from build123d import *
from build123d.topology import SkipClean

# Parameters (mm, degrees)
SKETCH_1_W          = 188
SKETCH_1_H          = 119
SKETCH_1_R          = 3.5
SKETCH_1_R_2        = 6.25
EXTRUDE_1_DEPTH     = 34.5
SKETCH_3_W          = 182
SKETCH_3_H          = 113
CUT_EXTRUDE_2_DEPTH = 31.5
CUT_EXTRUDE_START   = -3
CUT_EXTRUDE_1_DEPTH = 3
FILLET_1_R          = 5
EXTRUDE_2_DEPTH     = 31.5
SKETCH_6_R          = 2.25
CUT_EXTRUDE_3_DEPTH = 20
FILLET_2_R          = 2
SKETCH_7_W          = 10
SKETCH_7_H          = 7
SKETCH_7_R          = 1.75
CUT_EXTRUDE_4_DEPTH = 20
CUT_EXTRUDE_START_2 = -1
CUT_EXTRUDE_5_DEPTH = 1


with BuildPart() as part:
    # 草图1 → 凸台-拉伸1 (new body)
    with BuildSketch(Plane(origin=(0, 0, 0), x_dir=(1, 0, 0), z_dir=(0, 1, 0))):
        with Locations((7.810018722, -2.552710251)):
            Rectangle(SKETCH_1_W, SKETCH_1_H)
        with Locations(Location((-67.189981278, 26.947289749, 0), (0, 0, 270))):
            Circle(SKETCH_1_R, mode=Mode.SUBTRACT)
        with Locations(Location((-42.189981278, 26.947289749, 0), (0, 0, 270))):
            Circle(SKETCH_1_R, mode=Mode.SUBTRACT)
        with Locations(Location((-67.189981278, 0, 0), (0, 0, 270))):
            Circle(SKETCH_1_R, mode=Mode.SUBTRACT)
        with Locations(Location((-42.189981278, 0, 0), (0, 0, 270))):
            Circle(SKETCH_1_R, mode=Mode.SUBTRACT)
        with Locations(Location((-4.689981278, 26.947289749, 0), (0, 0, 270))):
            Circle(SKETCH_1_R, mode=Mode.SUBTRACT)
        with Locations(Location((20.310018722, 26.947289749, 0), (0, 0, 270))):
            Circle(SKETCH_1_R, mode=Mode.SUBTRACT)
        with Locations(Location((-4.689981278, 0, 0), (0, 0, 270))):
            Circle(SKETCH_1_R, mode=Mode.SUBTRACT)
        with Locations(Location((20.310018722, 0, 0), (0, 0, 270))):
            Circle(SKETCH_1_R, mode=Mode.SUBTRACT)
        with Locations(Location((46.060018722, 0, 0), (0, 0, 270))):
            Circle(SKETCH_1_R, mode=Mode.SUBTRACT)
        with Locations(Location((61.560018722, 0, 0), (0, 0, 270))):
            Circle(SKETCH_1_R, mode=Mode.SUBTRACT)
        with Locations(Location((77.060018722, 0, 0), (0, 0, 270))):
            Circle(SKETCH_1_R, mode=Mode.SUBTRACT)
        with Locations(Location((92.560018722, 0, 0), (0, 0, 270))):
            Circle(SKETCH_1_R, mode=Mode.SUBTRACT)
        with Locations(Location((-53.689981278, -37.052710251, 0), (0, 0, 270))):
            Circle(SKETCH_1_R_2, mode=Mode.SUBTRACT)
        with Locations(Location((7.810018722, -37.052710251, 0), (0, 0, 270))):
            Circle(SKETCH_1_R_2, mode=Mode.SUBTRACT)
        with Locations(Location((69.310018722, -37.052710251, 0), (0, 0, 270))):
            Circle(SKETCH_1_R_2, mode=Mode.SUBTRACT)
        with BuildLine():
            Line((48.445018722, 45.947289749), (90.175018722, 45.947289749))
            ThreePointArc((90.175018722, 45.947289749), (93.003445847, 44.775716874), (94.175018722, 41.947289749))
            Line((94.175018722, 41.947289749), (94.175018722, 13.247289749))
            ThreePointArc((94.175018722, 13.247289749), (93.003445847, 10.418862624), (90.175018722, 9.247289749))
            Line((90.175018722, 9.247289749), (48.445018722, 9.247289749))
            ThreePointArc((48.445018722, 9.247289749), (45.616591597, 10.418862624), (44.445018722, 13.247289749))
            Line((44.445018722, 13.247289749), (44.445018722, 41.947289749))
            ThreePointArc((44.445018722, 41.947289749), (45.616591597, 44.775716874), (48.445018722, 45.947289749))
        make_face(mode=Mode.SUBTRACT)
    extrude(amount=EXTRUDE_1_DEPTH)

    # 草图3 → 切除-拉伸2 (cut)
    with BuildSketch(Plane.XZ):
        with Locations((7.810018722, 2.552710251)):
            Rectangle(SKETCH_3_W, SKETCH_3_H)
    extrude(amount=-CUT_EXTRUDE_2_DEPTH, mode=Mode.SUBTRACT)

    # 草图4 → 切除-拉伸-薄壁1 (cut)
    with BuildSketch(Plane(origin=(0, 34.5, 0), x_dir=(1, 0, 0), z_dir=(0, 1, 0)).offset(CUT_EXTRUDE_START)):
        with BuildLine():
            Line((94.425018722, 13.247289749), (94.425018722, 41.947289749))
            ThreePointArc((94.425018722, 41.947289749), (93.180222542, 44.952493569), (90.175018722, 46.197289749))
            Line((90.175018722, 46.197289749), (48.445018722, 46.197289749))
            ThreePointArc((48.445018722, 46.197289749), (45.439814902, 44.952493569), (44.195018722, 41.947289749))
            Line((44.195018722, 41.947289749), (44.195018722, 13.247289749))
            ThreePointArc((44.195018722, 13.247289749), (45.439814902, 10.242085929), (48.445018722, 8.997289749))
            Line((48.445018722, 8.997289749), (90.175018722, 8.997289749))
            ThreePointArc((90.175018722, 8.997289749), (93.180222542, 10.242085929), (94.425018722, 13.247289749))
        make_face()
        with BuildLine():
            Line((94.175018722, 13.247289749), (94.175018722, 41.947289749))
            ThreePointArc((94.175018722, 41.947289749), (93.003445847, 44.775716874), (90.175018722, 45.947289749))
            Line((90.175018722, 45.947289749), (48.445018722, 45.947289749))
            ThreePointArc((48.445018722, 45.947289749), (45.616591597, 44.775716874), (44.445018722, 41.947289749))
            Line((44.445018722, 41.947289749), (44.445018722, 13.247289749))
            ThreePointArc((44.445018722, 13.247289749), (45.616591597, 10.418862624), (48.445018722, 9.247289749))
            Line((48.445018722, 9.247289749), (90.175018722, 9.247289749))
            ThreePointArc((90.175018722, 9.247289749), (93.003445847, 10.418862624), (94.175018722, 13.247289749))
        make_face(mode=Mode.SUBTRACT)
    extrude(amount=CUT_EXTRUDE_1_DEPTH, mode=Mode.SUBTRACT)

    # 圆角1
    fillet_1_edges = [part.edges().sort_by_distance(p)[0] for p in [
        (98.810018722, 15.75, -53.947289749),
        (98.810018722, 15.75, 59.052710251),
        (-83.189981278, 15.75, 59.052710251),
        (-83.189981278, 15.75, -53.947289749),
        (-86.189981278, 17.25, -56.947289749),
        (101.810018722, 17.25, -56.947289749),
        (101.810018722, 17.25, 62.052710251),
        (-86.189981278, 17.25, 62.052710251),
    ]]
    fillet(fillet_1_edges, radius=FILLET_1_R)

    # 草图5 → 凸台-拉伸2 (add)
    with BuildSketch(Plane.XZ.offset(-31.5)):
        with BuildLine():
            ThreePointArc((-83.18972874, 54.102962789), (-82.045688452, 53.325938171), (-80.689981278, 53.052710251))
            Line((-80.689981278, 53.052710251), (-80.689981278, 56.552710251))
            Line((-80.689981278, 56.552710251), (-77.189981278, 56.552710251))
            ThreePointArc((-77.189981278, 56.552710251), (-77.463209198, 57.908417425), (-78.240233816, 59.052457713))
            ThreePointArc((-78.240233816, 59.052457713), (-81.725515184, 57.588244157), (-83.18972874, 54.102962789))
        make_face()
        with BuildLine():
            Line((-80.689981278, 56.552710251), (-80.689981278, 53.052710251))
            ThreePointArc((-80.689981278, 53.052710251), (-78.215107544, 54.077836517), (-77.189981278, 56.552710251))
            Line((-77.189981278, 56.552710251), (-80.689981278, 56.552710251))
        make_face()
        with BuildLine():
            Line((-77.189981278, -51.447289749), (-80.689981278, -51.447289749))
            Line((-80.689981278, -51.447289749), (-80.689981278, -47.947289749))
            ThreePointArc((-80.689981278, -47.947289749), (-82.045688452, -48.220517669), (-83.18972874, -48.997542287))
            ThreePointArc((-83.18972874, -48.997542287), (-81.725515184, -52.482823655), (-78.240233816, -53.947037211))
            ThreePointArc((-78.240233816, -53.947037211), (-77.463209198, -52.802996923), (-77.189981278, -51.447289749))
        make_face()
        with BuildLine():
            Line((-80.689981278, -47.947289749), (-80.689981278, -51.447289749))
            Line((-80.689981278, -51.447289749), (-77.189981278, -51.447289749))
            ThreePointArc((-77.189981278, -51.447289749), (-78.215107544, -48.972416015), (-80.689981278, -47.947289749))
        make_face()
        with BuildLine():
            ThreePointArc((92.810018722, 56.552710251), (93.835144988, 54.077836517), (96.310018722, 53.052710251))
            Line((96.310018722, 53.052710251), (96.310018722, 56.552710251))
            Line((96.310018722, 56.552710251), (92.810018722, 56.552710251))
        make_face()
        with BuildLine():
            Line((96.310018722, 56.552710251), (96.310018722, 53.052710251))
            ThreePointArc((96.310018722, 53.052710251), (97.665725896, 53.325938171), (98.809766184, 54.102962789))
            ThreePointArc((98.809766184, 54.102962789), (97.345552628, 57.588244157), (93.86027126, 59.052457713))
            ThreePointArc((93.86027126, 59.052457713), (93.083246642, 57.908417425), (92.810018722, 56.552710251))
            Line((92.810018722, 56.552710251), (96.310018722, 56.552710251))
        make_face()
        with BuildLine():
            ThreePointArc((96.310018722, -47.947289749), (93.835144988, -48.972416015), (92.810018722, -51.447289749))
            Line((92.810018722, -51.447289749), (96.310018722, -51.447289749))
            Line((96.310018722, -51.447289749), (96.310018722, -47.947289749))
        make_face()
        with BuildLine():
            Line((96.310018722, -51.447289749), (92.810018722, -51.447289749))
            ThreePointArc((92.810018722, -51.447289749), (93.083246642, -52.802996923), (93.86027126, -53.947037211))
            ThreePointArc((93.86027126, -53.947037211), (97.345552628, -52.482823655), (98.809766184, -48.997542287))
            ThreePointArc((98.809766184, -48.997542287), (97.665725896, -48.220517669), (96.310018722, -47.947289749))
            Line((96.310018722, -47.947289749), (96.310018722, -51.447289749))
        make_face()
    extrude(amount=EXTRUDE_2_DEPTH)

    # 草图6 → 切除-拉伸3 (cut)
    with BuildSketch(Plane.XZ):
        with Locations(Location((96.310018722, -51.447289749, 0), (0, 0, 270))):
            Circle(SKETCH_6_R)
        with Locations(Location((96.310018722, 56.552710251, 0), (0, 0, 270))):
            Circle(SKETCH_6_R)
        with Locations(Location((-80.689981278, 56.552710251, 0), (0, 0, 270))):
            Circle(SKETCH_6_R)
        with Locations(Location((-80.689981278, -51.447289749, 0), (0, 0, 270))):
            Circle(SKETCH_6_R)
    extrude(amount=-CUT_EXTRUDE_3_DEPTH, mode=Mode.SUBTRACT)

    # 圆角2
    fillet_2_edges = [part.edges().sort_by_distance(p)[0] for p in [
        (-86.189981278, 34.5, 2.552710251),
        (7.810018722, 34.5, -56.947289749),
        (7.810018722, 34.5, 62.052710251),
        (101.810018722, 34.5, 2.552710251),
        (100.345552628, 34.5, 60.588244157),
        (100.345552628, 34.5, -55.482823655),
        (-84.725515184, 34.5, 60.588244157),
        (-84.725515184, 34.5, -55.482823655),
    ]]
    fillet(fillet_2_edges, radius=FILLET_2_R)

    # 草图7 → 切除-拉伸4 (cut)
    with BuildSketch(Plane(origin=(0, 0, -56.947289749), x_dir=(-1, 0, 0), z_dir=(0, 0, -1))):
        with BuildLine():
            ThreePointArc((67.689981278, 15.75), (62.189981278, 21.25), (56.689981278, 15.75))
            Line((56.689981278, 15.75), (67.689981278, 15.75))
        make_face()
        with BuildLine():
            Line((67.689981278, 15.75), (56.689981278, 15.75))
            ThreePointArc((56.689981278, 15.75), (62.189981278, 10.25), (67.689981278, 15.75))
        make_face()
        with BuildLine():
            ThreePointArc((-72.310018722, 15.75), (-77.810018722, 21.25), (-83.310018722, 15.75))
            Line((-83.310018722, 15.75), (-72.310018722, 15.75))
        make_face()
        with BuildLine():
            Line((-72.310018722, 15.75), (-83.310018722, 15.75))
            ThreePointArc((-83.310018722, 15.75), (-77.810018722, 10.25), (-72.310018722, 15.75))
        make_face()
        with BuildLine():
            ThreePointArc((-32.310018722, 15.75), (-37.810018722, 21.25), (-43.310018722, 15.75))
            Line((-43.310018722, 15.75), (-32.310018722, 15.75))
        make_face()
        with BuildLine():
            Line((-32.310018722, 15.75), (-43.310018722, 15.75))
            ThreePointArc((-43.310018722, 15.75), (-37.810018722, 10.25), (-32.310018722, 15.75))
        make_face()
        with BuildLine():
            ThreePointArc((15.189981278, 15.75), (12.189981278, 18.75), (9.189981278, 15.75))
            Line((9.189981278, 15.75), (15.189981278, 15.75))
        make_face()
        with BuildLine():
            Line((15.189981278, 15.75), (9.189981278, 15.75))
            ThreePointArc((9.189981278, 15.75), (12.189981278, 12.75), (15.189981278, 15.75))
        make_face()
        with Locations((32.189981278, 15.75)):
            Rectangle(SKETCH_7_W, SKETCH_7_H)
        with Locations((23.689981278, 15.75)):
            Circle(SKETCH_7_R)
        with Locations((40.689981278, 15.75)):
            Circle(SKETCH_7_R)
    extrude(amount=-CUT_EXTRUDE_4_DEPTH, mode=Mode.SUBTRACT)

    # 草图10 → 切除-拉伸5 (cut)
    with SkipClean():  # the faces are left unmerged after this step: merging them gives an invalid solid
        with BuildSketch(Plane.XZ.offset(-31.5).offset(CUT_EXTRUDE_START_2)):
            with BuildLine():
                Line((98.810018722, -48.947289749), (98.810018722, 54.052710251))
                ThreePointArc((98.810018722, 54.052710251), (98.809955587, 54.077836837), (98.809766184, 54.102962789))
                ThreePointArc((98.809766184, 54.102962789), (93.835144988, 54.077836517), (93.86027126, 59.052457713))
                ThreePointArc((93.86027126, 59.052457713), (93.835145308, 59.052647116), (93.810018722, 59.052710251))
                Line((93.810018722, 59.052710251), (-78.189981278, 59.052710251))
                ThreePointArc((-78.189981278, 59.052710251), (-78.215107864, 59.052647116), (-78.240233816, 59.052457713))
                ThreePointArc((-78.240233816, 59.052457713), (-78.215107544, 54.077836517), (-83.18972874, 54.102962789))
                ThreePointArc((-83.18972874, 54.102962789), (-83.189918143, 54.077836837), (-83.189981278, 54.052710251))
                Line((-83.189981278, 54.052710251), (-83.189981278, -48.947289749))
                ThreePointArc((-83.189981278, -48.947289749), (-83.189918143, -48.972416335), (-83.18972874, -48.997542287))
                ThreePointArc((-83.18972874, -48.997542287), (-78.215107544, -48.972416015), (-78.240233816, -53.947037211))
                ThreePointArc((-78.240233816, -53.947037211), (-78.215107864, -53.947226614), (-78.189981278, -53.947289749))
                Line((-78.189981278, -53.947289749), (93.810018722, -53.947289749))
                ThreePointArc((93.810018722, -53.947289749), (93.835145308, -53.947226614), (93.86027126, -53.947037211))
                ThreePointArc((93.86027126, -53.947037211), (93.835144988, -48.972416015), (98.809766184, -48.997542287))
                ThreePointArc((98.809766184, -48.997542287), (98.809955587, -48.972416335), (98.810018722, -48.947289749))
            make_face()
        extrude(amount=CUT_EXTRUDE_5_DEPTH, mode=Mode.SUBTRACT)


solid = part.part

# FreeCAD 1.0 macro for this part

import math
import FreeCAD as App
import Part
import Sketcher
from FreeCAD import Vector


def edges_at(feature, points):
    """Names of the edges that pass closest to the given points."""
    edges = feature.Shape.Edges
    near = lambda p: min(range(len(edges)), key=lambda i: edges[i].distToShape(Part.Vertex(*p))[0])
    return sorted({f"Edge{near(p) + 1}" for p in points})

doc = App.newDocument("Part")
body = doc.addObject("PartDesign::Body", "Body")

sketch1 = body.newObject("Sketcher::SketchObject", "Sketch")
sketch1.AttachmentSupport = (doc.getObject("XZ_Plane"), [""])
sketch1.MapMode = "FlatFace"
sketch1.addGeometry(Part.LineSegment(Vector(-86.2, -56.9, 0), Vector(-86.2, 62.1, 0)), False)
sketch1.addGeometry(Part.LineSegment(Vector(-86.2, 62.1, 0), Vector(101.8, 62.1, 0)), False)
sketch1.addGeometry(Part.LineSegment(Vector(101.8, 62.1, 0), Vector(101.8, -56.9, 0)), False)
sketch1.addGeometry(Part.LineSegment(Vector(101.8, -56.9, 0), Vector(-86.2, -56.9, 0)), False)
sketch1.addGeometry(Part.Circle(Vector(-53.7, 37.1, 0), Vector(0, 0, 1), 6.2), False)
sketch1.addGeometry(Part.Circle(Vector(7.8, 37.1, 0), Vector(0, 0, 1), 6.2), False)
sketch1.addGeometry(Part.Circle(Vector(-67.2, 0, 0), Vector(0, 0, 1), 3.5), False)
sketch1.addGeometry(Part.Circle(Vector(-42.2, 0, 0), Vector(0, 0, 1), 3.5), False)
sketch1.addGeometry(Part.Circle(Vector(-4.7, 0, 0), Vector(0, 0, 1), 3.5), False)
sketch1.addGeometry(Part.Circle(Vector(69.3, 37.1, 0), Vector(0, 0, 1), 6.2), False)
sketch1.addGeometry(Part.Circle(Vector(20.3, 0, 0), Vector(0, 0, 1), 3.5), False)
sketch1.addGeometry(Part.Circle(Vector(46.1, 0, 0), Vector(0, 0, 1), 3.5), False)
sketch1.addGeometry(Part.Circle(Vector(61.6, 0, 0), Vector(0, 0, 1), 3.5), False)
sketch1.addGeometry(Part.Circle(Vector(77.1, 0, 0), Vector(0, 0, 1), 3.5), False)
sketch1.addGeometry(Part.Circle(Vector(92.6, 0, 0), Vector(0, 0, 1), 3.5), False)
sketch1.addGeometry(Part.Circle(Vector(-67.2, -26.9, 0), Vector(0, 0, 1), 3.5), False)
sketch1.addGeometry(Part.Circle(Vector(-42.2, -26.9, 0), Vector(0, 0, 1), 3.5), False)
sketch1.addGeometry(Part.Circle(Vector(-4.7, -26.9, 0), Vector(0, 0, 1), 3.5), False)
sketch1.addGeometry(Part.Circle(Vector(20.3, -26.9, 0), Vector(0, 0, 1), 3.5), False)
sketch1.addGeometry(Part.ArcOfCircle(Part.Circle(Vector(48.4, -41.9, 0), Vector(0, 0, 1), 4), math.radians(180), math.radians(270)), False)
sketch1.addGeometry(Part.LineSegment(Vector(48.4, -45.9, 0), Vector(90.2, -45.9, 0)), False)
sketch1.addGeometry(Part.ArcOfCircle(Part.Circle(Vector(90.2, -41.9, 0), Vector(0, 0, 1), 4), math.radians(-90), math.radians(0)), False)
sketch1.addGeometry(Part.LineSegment(Vector(94.2, -41.9, 0), Vector(94.2, -13.2, 0)), False)
sketch1.addGeometry(Part.ArcOfCircle(Part.Circle(Vector(90.2, -13.2, 0), Vector(0, 0, 1), 4), math.radians(0), math.radians(90)), False)
sketch1.addGeometry(Part.LineSegment(Vector(90.2, -9.2, 0), Vector(48.4, -9.2, 0)), False)
sketch1.addGeometry(Part.ArcOfCircle(Part.Circle(Vector(48.4, -13.2, 0), Vector(0, 0, 1), 4), math.radians(90), math.radians(180)), False)
sketch1.addGeometry(Part.LineSegment(Vector(44.4, -13.2, 0), Vector(44.4, -41.9, 0)), False)
sketch1.addConstraint(Sketcher.Constraint("Coincident", 0, 2, 1, 1))
sketch1.addConstraint(Sketcher.Constraint("Coincident", 1, 2, 2, 1))
sketch1.addConstraint(Sketcher.Constraint("Coincident", 2, 2, 3, 1))
sketch1.addConstraint(Sketcher.Constraint("Coincident", 3, 2, 0, 1))
sketch1.addConstraint(Sketcher.Constraint("Tangent", 19, 2, 20, 1))
sketch1.addConstraint(Sketcher.Constraint("Tangent", 20, 2, 21, 1))
sketch1.addConstraint(Sketcher.Constraint("Tangent", 21, 2, 22, 1))
sketch1.addConstraint(Sketcher.Constraint("Tangent", 22, 2, 23, 1))
sketch1.addConstraint(Sketcher.Constraint("Tangent", 23, 2, 24, 1))
sketch1.addConstraint(Sketcher.Constraint("Tangent", 24, 2, 25, 1))
sketch1.addConstraint(Sketcher.Constraint("Tangent", 25, 2, 26, 1))
sketch1.addConstraint(Sketcher.Constraint("Tangent", 26, 2, 19, 1))
sketch1.addConstraint(Sketcher.Constraint("Vertical", 0))
sketch1.addConstraint(Sketcher.Constraint("Horizontal", 1))
sketch1.addConstraint(Sketcher.Constraint("Vertical", 2))
sketch1.addConstraint(Sketcher.Constraint("Horizontal", 3))
sketch1.addConstraint(Sketcher.Constraint("Horizontal", 20))
sketch1.addConstraint(Sketcher.Constraint("Vertical", 22))
sketch1.addConstraint(Sketcher.Constraint("Horizontal", 24))
sketch1.addConstraint(Sketcher.Constraint("Vertical", 26))
sketch1.addConstraint(Sketcher.Constraint("Equal", 4, 5))
sketch1.addConstraint(Sketcher.Constraint("Equal", 6, 7))
sketch1.addConstraint(Sketcher.Constraint("Equal", 7, 8))
sketch1.addConstraint(Sketcher.Constraint("Equal", 5, 9))
sketch1.addConstraint(Sketcher.Constraint("Equal", 8, 10))
sketch1.addConstraint(Sketcher.Constraint("Equal", 10, 11))
sketch1.addConstraint(Sketcher.Constraint("Equal", 11, 12))
sketch1.addConstraint(Sketcher.Constraint("Equal", 12, 13))
sketch1.addConstraint(Sketcher.Constraint("Equal", 13, 14))
sketch1.addConstraint(Sketcher.Constraint("Equal", 14, 15))
sketch1.addConstraint(Sketcher.Constraint("Equal", 15, 16))
sketch1.addConstraint(Sketcher.Constraint("Equal", 16, 17))
sketch1.addConstraint(Sketcher.Constraint("Equal", 17, 18))
sketch1.addConstraint(Sketcher.Constraint("Equal", 19, 21))
sketch1.addConstraint(Sketcher.Constraint("Equal", 21, 23))
sketch1.addConstraint(Sketcher.Constraint("Equal", 23, 25))
sketch1.addConstraint(Sketcher.Constraint("PointOnObject", 6, 3, -1))
sketch1.addConstraint(Sketcher.Constraint("PointOnObject", 7, 3, -1))
sketch1.addConstraint(Sketcher.Constraint("PointOnObject", 8, 3, -1))
sketch1.addConstraint(Sketcher.Constraint("PointOnObject", 10, 3, -1))
sketch1.addConstraint(Sketcher.Constraint("PointOnObject", 11, 3, -1))
sketch1.addConstraint(Sketcher.Constraint("PointOnObject", 12, 3, -1))
sketch1.addConstraint(Sketcher.Constraint("PointOnObject", 13, 3, -1))
sketch1.addConstraint(Sketcher.Constraint("PointOnObject", 14, 3, -1))
sketch1.addConstraint(Sketcher.Constraint("Horizontal", 4, 3, 5, 3))
sketch1.addConstraint(Sketcher.Constraint("Horizontal", 5, 3, 9, 3))
sketch1.addConstraint(Sketcher.Constraint("Horizontal", 15, 3, 16, 3))
sketch1.addConstraint(Sketcher.Constraint("Horizontal", 16, 3, 17, 3))
sketch1.addConstraint(Sketcher.Constraint("Horizontal", 17, 3, 18, 3))
sketch1.addConstraint(Sketcher.Constraint("Vertical", 6, 3, 15, 3))
sketch1.addConstraint(Sketcher.Constraint("Vertical", 7, 3, 16, 3))
sketch1.addConstraint(Sketcher.Constraint("Vertical", 8, 3, 17, 3))
sketch1.addConstraint(Sketcher.Constraint("Vertical", 10, 3, 18, 3))
sketch1.addConstraint(Sketcher.Constraint("Diameter", 6, 7.0))
sketch1.addConstraint(Sketcher.Constraint("Radius", 19, 4.0))
sketch1.addConstraint(Sketcher.Constraint("Diameter", 4, 12.5))
sketch1.addConstraint(Sketcher.Constraint("DistanceX", 1, 1, 1, 2, 188.0))
sketch1.addConstraint(Sketcher.Constraint("DistanceY", 0, 1, 0, 2, 119.0))
sketch1.addConstraint(Sketcher.Constraint("DistanceY", 22, 1, 22, 2, 28.7))
sketch1.addConstraint(Sketcher.Constraint("DistanceX", 6, 3, 5, 3, 75.0))
sketch1.addConstraint(Sketcher.Constraint("DistanceX", 6, 3, 7, 3, 25.0))
sketch1.addConstraint(Sketcher.Constraint("DistanceX", 4, 3, 8, 3, 49.0))
sketch1.addConstraint(Sketcher.Constraint("DistanceX", 8, 3, 9, 3, 74.0))
sketch1.addConstraint(Sketcher.Constraint("DistanceX", 8, 3, 10, 3, 25.0))
sketch1.addConstraint(Sketcher.Constraint("DistanceX", 11, 3, 13, 3, 31.0))
sketch1.addConstraint(Sketcher.Constraint("DistanceX", 12, 3, 14, 3, 31.0))
sketch1.addConstraint(Sketcher.Constraint("DistanceY", 15, 3, 4, 3, 64.0))
sketch1.addConstraint(Sketcher.Constraint("DistanceY", 19, 3, 18, 3, 15.0))
sketch1.addConstraint(Sketcher.Constraint("DistanceY", 4, 3, 0, 2, 25.0))
sketch1.addConstraint(Sketcher.Constraint("DistanceX", 0, 2, 6, 3, 19.0))
sketch1.addConstraint(Sketcher.Constraint("DistanceX", 20, 1, 20, 2, 41.73))
sketch1.addConstraint(Sketcher.Constraint("DistanceX", 4, 3, 5, 3, 61.5))
sketch1.addConstraint(Sketcher.Constraint("DistanceX", 11, 3, 12, 3, 15.5))
sketch1.addConstraint(Sketcher.Constraint("DistanceX", 10, 3, 11, 3, 25.75))
sketch1.addConstraint(Sketcher.Constraint("DistanceX", 18, 3, 19, 3, 28.135))
sketch1.addConstraint(Sketcher.Constraint("DistanceX", 4, 3, -1, 1, 53.689981))
sketch1.addConstraint(Sketcher.Constraint("DistanceY", -1, 1, 4, 3, 37.05271))
pad1 = body.newObject("PartDesign::Pad", "Pad")
pad1.Profile = sketch1
pad1.Length = 34.5
pad1.Reversed = True

sketch2 = body.newObject("Sketcher::SketchObject", "Sketch001")
sketch2.AttachmentSupport = (doc.getObject("XZ_Plane"), [""])
sketch2.MapMode = "FlatFace"
sketch2.addGeometry(Part.LineSegment(Vector(-83, 59, 0), Vector(-83, -54, 0)), False)
sketch2.addGeometry(Part.LineSegment(Vector(-83, -54, 0), Vector(99, -54, 0)), False)
sketch2.addGeometry(Part.LineSegment(Vector(99, -54, 0), Vector(99, 59, 0)), False)
sketch2.addGeometry(Part.LineSegment(Vector(99, 59, 0), Vector(-83, 59, 0)), False)
sketch2.addConstraint(Sketcher.Constraint("Coincident", 0, 2, 1, 1))
sketch2.addConstraint(Sketcher.Constraint("Coincident", 1, 2, 2, 1))
sketch2.addConstraint(Sketcher.Constraint("Coincident", 2, 2, 3, 1))
sketch2.addConstraint(Sketcher.Constraint("Coincident", 3, 2, 0, 1))
sketch2.addConstraint(Sketcher.Constraint("Vertical", 0))
sketch2.addConstraint(Sketcher.Constraint("Horizontal", 1))
sketch2.addConstraint(Sketcher.Constraint("Vertical", 2))
sketch2.addConstraint(Sketcher.Constraint("Horizontal", 3))
sketch2.addConstraint(Sketcher.Constraint("DistanceX", 1, 1, 1, 2, 182.0))
sketch2.addConstraint(Sketcher.Constraint("DistanceY", 0, 2, 0, 1, 113.0))
sketch2.addConstraint(Sketcher.Constraint("DistanceX", 0, 2, -1, 1, 83.189981))
sketch2.addConstraint(Sketcher.Constraint("DistanceY", 0, 2, -1, 1, 53.94729))
pocket1 = body.newObject("PartDesign::Pocket", "Pocket")
pocket1.Profile = sketch2
pocket1.Length = 31.5

sketch3 = body.newObject("Sketcher::SketchObject", "Sketch002")
sketch3.AttachmentSupport = (doc.getObject("XZ_Plane"), [""])
sketch3.MapMode = "FlatFace"
sketch3.AttachmentOffset = App.Placement(Vector(0, 0, -31.5), App.Rotation())
sketch3.addGeometry(Part.LineSegment(Vector(94.4, -13.2, 0), Vector(94.4, -41.9, 0)), False)
sketch3.addGeometry(Part.ArcOfCircle(Part.Circle(Vector(90.2, -41.9, 0), Vector(0, 0, 1), 4.2), math.radians(-90), math.radians(0)), False)
sketch3.addGeometry(Part.LineSegment(Vector(90.2, -46.2, 0), Vector(48.4, -46.2, 0)), False)
sketch3.addGeometry(Part.ArcOfCircle(Part.Circle(Vector(48.4, -41.9, 0), Vector(0, 0, 1), 4.2), math.radians(180), math.radians(270)), False)
sketch3.addGeometry(Part.LineSegment(Vector(44.2, -41.9, 0), Vector(44.2, -13.2, 0)), False)
sketch3.addGeometry(Part.ArcOfCircle(Part.Circle(Vector(48.4, -13.2, 0), Vector(0, 0, 1), 4.2), math.radians(90), math.radians(180)), False)
sketch3.addGeometry(Part.LineSegment(Vector(48.4, -9, 0), Vector(90.2, -9, 0)), False)
sketch3.addGeometry(Part.ArcOfCircle(Part.Circle(Vector(90.2, -13.2, 0), Vector(0, 0, 1), 4.2), math.radians(0), math.radians(90)), False)
sketch3.addGeometry(Part.LineSegment(Vector(94.2, -41.9, 0), Vector(94.2, -13.2, 0)), False)
sketch3.addGeometry(Part.ArcOfCircle(Part.Circle(Vector(90.2, -13.2, 0), Vector(0, 0, 1), 4), math.radians(0), math.radians(90)), False)
sketch3.addGeometry(Part.LineSegment(Vector(90.2, -9.2, 0), Vector(48.4, -9.2, 0)), False)
sketch3.addGeometry(Part.ArcOfCircle(Part.Circle(Vector(48.4, -13.2, 0), Vector(0, 0, 1), 4), math.radians(90), math.radians(180)), False)
sketch3.addGeometry(Part.LineSegment(Vector(44.4, -13.2, 0), Vector(44.4, -41.9, 0)), False)
sketch3.addGeometry(Part.ArcOfCircle(Part.Circle(Vector(48.4, -41.9, 0), Vector(0, 0, 1), 4), math.radians(180), math.radians(270)), False)
sketch3.addGeometry(Part.LineSegment(Vector(48.4, -45.9, 0), Vector(90.2, -45.9, 0)), False)
sketch3.addGeometry(Part.ArcOfCircle(Part.Circle(Vector(90.2, -41.9, 0), Vector(0, 0, 1), 4), math.radians(-90), math.radians(0)), False)
sketch3.addConstraint(Sketcher.Constraint("Tangent", 0, 2, 1, 2))
sketch3.addConstraint(Sketcher.Constraint("Tangent", 1, 1, 2, 1))
sketch3.addConstraint(Sketcher.Constraint("Tangent", 2, 2, 3, 2))
sketch3.addConstraint(Sketcher.Constraint("Tangent", 3, 1, 4, 1))
sketch3.addConstraint(Sketcher.Constraint("Tangent", 4, 2, 5, 2))
sketch3.addConstraint(Sketcher.Constraint("Tangent", 5, 1, 6, 1))
sketch3.addConstraint(Sketcher.Constraint("Tangent", 6, 2, 7, 2))
sketch3.addConstraint(Sketcher.Constraint("Tangent", 7, 1, 0, 1))
sketch3.addConstraint(Sketcher.Constraint("Tangent", 8, 2, 9, 1))
sketch3.addConstraint(Sketcher.Constraint("Tangent", 9, 2, 10, 1))
sketch3.addConstraint(Sketcher.Constraint("Tangent", 10, 2, 11, 1))
sketch3.addConstraint(Sketcher.Constraint("Tangent", 11, 2, 12, 1))
sketch3.addConstraint(Sketcher.Constraint("Tangent", 12, 2, 13, 1))
sketch3.addConstraint(Sketcher.Constraint("Tangent", 13, 2, 14, 1))
sketch3.addConstraint(Sketcher.Constraint("Tangent", 14, 2, 15, 1))
sketch3.addConstraint(Sketcher.Constraint("Tangent", 15, 2, 8, 1))
sketch3.addConstraint(Sketcher.Constraint("Vertical", 0))
sketch3.addConstraint(Sketcher.Constraint("Horizontal", 2))
sketch3.addConstraint(Sketcher.Constraint("Vertical", 4))
sketch3.addConstraint(Sketcher.Constraint("Horizontal", 6))
sketch3.addConstraint(Sketcher.Constraint("Vertical", 8))
sketch3.addConstraint(Sketcher.Constraint("Horizontal", 10))
sketch3.addConstraint(Sketcher.Constraint("Vertical", 12))
sketch3.addConstraint(Sketcher.Constraint("Horizontal", 14))
sketch3.addConstraint(Sketcher.Constraint("Coincident", 9, 3, 7, 3))
sketch3.addConstraint(Sketcher.Constraint("Coincident", 11, 3, 5, 3))
sketch3.addConstraint(Sketcher.Constraint("Coincident", 13, 3, 3, 3))
sketch3.addConstraint(Sketcher.Constraint("Equal", 1, 3))
sketch3.addConstraint(Sketcher.Constraint("Equal", 3, 5))
sketch3.addConstraint(Sketcher.Constraint("Equal", 5, 7))
sketch3.addConstraint(Sketcher.Constraint("Equal", 13, 15))
sketch3.addConstraint(Sketcher.Constraint("Radius", 9, 4.0))
sketch3.addConstraint(Sketcher.Constraint("Radius", 1, 4.25))
sketch3.addConstraint(Sketcher.Constraint("DistanceY", 0, 2, 0, 1, 28.7))
sketch3.addConstraint(Sketcher.Constraint("DistanceX", 2, 2, 2, 1, 41.73))
sketch3.addConstraint(Sketcher.Constraint("DistanceX", -1, 1, 1, 3, 90.175019))
sketch3.addConstraint(Sketcher.Constraint("DistanceY", 1, 3, -1, 1, 41.94729))
pocket2 = body.newObject("PartDesign::Pocket", "Pocket001")
pocket2.Profile = sketch3
pocket2.Length = 3
doc.recompute()

fillet = body.newObject("PartDesign::Fillet", "Fillet")
fillet.Base = (pocket2, edges_at(pocket2, [
    (98.81, 15.75, -53.947),
    (98.81, 15.75, 59.053),
    (-83.19, 15.75, 59.053),
    (-83.19, 15.75, -53.947),
    (-86.19, 17.25, -56.947),
    (101.81, 17.25, -56.947),
    (101.81, 17.25, 62.053),
    (-86.19, 17.25, 62.053),
]))
fillet.Radius = 5

sketch4 = body.newObject("Sketcher::SketchObject", "Sketch003")
sketch4.AttachmentSupport = (doc.getObject("XZ_Plane"), [""])
sketch4.MapMode = "FlatFace"
sketch4.AttachmentOffset = App.Placement(Vector(0, 0, -31.5), App.Rotation())
sketch4.addGeometry(Part.ArcOfCircle(Part.Circle(Vector(-80.7, 56.6, 0), Vector(0, 0, 1), 3.5), math.radians(-136), math.radians(-90)), False)
sketch4.addGeometry(Part.ArcOfCircle(Part.Circle(Vector(-80.7, 56.6, 0), Vector(0, 0, 1), 3.5), math.radians(-90), math.radians(0)), False)
sketch4.addGeometry(Part.ArcOfCircle(Part.Circle(Vector(-80.7, 56.6, 0), Vector(0, 0, 1), 3.5), math.radians(0), math.radians(46)), False)
sketch4.addGeometry(Part.ArcOfCircle(Part.Circle(Vector(-78.2, 54.1, 0), Vector(0, 0, 1), 5), math.radians(91), math.radians(179)), False)
sketch4.addGeometry(Part.ArcOfCircle(Part.Circle(Vector(-80.7, -51.4, 0), Vector(0, 0, 1), 3.5), math.radians(90), math.radians(136)), False)
sketch4.addGeometry(Part.ArcOfCircle(Part.Circle(Vector(-78.2, -48.9, 0), Vector(0, 0, 1), 5), math.radians(-179), math.radians(-91)), False)
sketch4.addGeometry(Part.ArcOfCircle(Part.Circle(Vector(-80.7, -51.4, 0), Vector(0, 0, 1), 3.5), math.radians(-46), math.radians(0)), False)
sketch4.addGeometry(Part.ArcOfCircle(Part.Circle(Vector(-80.7, -51.4, 0), Vector(0, 0, 1), 3.5), math.radians(0), math.radians(90)), False)
sketch4.addGeometry(Part.ArcOfCircle(Part.Circle(Vector(96.3, 56.6, 0), Vector(0, 0, 1), 3.5), math.radians(-180), math.radians(-90)), False)
sketch4.addGeometry(Part.ArcOfCircle(Part.Circle(Vector(96.3, 56.6, 0), Vector(0, 0, 1), 3.5), math.radians(-90), math.radians(-44)), False)
sketch4.addGeometry(Part.ArcOfCircle(Part.Circle(Vector(93.8, 54.1, 0), Vector(0, 0, 1), 5), math.radians(1), math.radians(89)), False)
sketch4.addGeometry(Part.ArcOfCircle(Part.Circle(Vector(96.3, 56.6, 0), Vector(0, 0, 1), 3.5), math.radians(134), math.radians(180)), False)
sketch4.addGeometry(Part.ArcOfCircle(Part.Circle(Vector(96.3, -51.4, 0), Vector(0, 0, 1), 3.5), math.radians(90), math.radians(180)), False)
sketch4.addGeometry(Part.ArcOfCircle(Part.Circle(Vector(96.3, -51.4, 0), Vector(0, 0, 1), 3.5), math.radians(-180), math.radians(-134)), False)
sketch4.addGeometry(Part.ArcOfCircle(Part.Circle(Vector(93.8, -48.9, 0), Vector(0, 0, 1), 5), math.radians(-89), math.radians(-1)), False)
sketch4.addGeometry(Part.ArcOfCircle(Part.Circle(Vector(96.3, -51.4, 0), Vector(0, 0, 1), 3.5), math.radians(44), math.radians(90)), False)
sketch4.addConstraint(Sketcher.Constraint("Tangent", 0, 2, 1, 1))
sketch4.addConstraint(Sketcher.Constraint("Tangent", 1, 2, 2, 1))
sketch4.addConstraint(Sketcher.Constraint("Coincident", 2, 2, 3, 1))
sketch4.addConstraint(Sketcher.Constraint("Coincident", 3, 2, 0, 1))
sketch4.addConstraint(Sketcher.Constraint("Coincident", 4, 2, 5, 1))
sketch4.addConstraint(Sketcher.Constraint("Coincident", 5, 2, 6, 1))
sketch4.addConstraint(Sketcher.Constraint("Tangent", 6, 2, 7, 1))
sketch4.addConstraint(Sketcher.Constraint("Tangent", 7, 2, 4, 1))
sketch4.addConstraint(Sketcher.Constraint("Tangent", 8, 2, 9, 1))
sketch4.addConstraint(Sketcher.Constraint("Coincident", 9, 2, 10, 1))
sketch4.addConstraint(Sketcher.Constraint("Coincident", 10, 2, 11, 1))
sketch4.addConstraint(Sketcher.Constraint("Tangent", 11, 2, 8, 1))
sketch4.addConstraint(Sketcher.Constraint("Tangent", 12, 2, 13, 1))
sketch4.addConstraint(Sketcher.Constraint("Coincident", 13, 2, 14, 1))
sketch4.addConstraint(Sketcher.Constraint("Coincident", 14, 2, 15, 1))
sketch4.addConstraint(Sketcher.Constraint("Tangent", 15, 2, 12, 1))
sketch4.addConstraint(Sketcher.Constraint("Coincident", 2, 3, 0, 3))
sketch4.addConstraint(Sketcher.Constraint("Coincident", 6, 3, 4, 3))
sketch4.addConstraint(Sketcher.Constraint("Equal", 2, 4))
sketch4.addConstraint(Sketcher.Constraint("Equal", 3, 5))
sketch4.addConstraint(Sketcher.Constraint("Equal", 7, 8))
sketch4.addConstraint(Sketcher.Constraint("Equal", 8, 9))
sketch4.addConstraint(Sketcher.Constraint("Equal", 5, 10))
sketch4.addConstraint(Sketcher.Constraint("Equal", 9, 11))
sketch4.addConstraint(Sketcher.Constraint("Equal", 11, 12))
sketch4.addConstraint(Sketcher.Constraint("Equal", 12, 13))
sketch4.addConstraint(Sketcher.Constraint("Equal", 10, 14))
sketch4.addConstraint(Sketcher.Constraint("Equal", 13, 15))
sketch4.addConstraint(Sketcher.Constraint("Horizontal", 2, 3, 8, 3))
sketch4.addConstraint(Sketcher.Constraint("Horizontal", 3, 3, 10, 3))
sketch4.addConstraint(Sketcher.Constraint("Horizontal", 7, 3, 12, 3))
sketch4.addConstraint(Sketcher.Constraint("Horizontal", 5, 3, 14, 3))
sketch4.addConstraint(Sketcher.Constraint("Horizontal", 11, 3, 1, 2))
sketch4.addConstraint(Sketcher.Constraint("Horizontal", 15, 3, 6, 2))
sketch4.addConstraint(Sketcher.Constraint("Horizontal", 3, 2, 9, 2))
sketch4.addConstraint(Sketcher.Constraint("Horizontal", 1, 2, 11, 2))
sketch4.addConstraint(Sketcher.Constraint("Horizontal", 6, 2, 12, 2))
sketch4.addConstraint(Sketcher.Constraint("Horizontal", 5, 2, 13, 2))
sketch4.addConstraint(Sketcher.Constraint("Vertical", 2, 3, 4, 3))
sketch4.addConstraint(Sketcher.Constraint("Vertical", 3, 3, 5, 3))
sketch4.addConstraint(Sketcher.Constraint("Vertical", 11, 3, 12, 3))
sketch4.addConstraint(Sketcher.Constraint("Vertical", 7, 3, 0, 2))
sketch4.addConstraint(Sketcher.Constraint("Vertical", 3, 2, 4, 2))
sketch4.addConstraint(Sketcher.Constraint("Vertical", 0, 2, 7, 2))
sketch4.addConstraint(Sketcher.Constraint("Vertical", 15, 3, 8, 2))
sketch4.addConstraint(Sketcher.Constraint("Vertical", 8, 2, 15, 2))
sketch4.addConstraint(Sketcher.Constraint("Radius", 3, 5.0))
sketch4.addConstraint(Sketcher.Constraint("Radius", 0, 3.5))
sketch4.addConstraint(Sketcher.Constraint("DistanceY", 4, 3, 2, 3, 108.0))
sketch4.addConstraint(Sketcher.Constraint("DistanceY", 5, 3, 3, 3, 103.0))
sketch4.addConstraint(Sketcher.Constraint("DistanceX", 0, 3, 8, 3, 177.0))
sketch4.addConstraint(Sketcher.Constraint("DistanceX", 3, 3, 10, 3, 172.0))
sketch4.addConstraint(Sketcher.Constraint("DistanceX", 0, 3, -1, 1, 80.689981))
sketch4.addConstraint(Sketcher.Constraint("DistanceY", -1, 1, 0, 3, 56.55271))
pad2 = body.newObject("PartDesign::Pad", "Pad001")
pad2.Profile = sketch4
pad2.Length = 31.5

sketch5 = body.newObject("Sketcher::SketchObject", "Sketch004")
sketch5.AttachmentSupport = (doc.getObject("XZ_Plane"), [""])
sketch5.MapMode = "FlatFace"
sketch5.addGeometry(Part.Circle(Vector(96.3, -51.4, 0), Vector(0, 0, 1), 2.2), False)
sketch5.addGeometry(Part.Circle(Vector(96.3, 56.6, 0), Vector(0, 0, 1), 2.2), False)
sketch5.addGeometry(Part.Circle(Vector(-80.7, 56.6, 0), Vector(0, 0, 1), 2.2), False)
sketch5.addGeometry(Part.Circle(Vector(-80.7, -51.4, 0), Vector(0, 0, 1), 2.2), False)
sketch5.addConstraint(Sketcher.Constraint("Equal", 0, 1))
sketch5.addConstraint(Sketcher.Constraint("Equal", 1, 2))
sketch5.addConstraint(Sketcher.Constraint("Equal", 2, 3))
sketch5.addConstraint(Sketcher.Constraint("Horizontal", 1, 3, 2, 3))
sketch5.addConstraint(Sketcher.Constraint("Horizontal", 0, 3, 3, 3))
sketch5.addConstraint(Sketcher.Constraint("Vertical", 0, 3, 1, 3))
sketch5.addConstraint(Sketcher.Constraint("Vertical", 2, 3, 3, 3))
sketch5.addConstraint(Sketcher.Constraint("Diameter", 0, 4.5))
sketch5.addConstraint(Sketcher.Constraint("DistanceY", 0, 3, 1, 3, 108.0))
sketch5.addConstraint(Sketcher.Constraint("DistanceX", 2, 3, 1, 3, 177.0))
sketch5.addConstraint(Sketcher.Constraint("DistanceX", -1, 1, 0, 3, 96.310019))
sketch5.addConstraint(Sketcher.Constraint("DistanceY", 0, 3, -1, 1, 51.44729))
pocket3 = body.newObject("PartDesign::Pocket", "Pocket002")
pocket3.Profile = sketch5
pocket3.Length = 20
doc.recompute()

fillet2 = body.newObject("PartDesign::Fillet", "Fillet001")
fillet2.Base = (pocket3, edges_at(pocket3, [
    (-86.19, 34.5, 2.553),
    (7.81, 34.5, -56.947),
    (7.81, 34.5, 62.053),
    (101.81, 34.5, 2.553),
    (100.346, 34.5, 60.588),
    (100.346, 34.5, -55.483),
    (-84.726, 34.5, 60.588),
    (-84.726, 34.5, -55.483),
]))
fillet2.Radius = 2

sketch6 = body.newObject("Sketcher::SketchObject", "Sketch005")
sketch6.AttachmentSupport = (doc.getObject("XY_Plane"), [""])
sketch6.MapMode = "FlatFace"
sketch6.AttachmentOffset = App.Placement(Vector(0, 0, -56.94729), App.Rotation())
sketch6.addGeometry(Part.Circle(Vector(-62.2, 15.8, 0), Vector(0, 0, 1), 5.5), False)
sketch6.addGeometry(Part.Circle(Vector(77.8, 15.8, 0), Vector(0, 0, 1), 5.5), False)
sketch6.addGeometry(Part.Circle(Vector(37.8, 15.8, 0), Vector(0, 0, 1), 5.5), False)
sketch6.addGeometry(Part.Circle(Vector(-12.2, 15.8, 0), Vector(0, 0, 1), 3), False)
sketch6.addGeometry(Part.LineSegment(Vector(-27.2, 19.2, 0), Vector(-27.2, 12.2, 0)), False)
sketch6.addGeometry(Part.LineSegment(Vector(-27.2, 12.2, 0), Vector(-37.2, 12.2, 0)), False)
sketch6.addGeometry(Part.LineSegment(Vector(-37.2, 12.2, 0), Vector(-37.2, 19.2, 0)), False)
sketch6.addGeometry(Part.LineSegment(Vector(-37.2, 19.2, 0), Vector(-27.2, 19.2, 0)), False)
sketch6.addGeometry(Part.Circle(Vector(-23.7, 15.8, 0), Vector(0, 0, 1), 1.8), False)
sketch6.addGeometry(Part.Circle(Vector(-40.7, 15.8, 0), Vector(0, 0, 1), 1.8), False)
sketch6.addConstraint(Sketcher.Constraint("Coincident", 4, 2, 5, 1))
sketch6.addConstraint(Sketcher.Constraint("Coincident", 5, 2, 6, 1))
sketch6.addConstraint(Sketcher.Constraint("Coincident", 6, 2, 7, 1))
sketch6.addConstraint(Sketcher.Constraint("Coincident", 7, 2, 4, 1))
sketch6.addConstraint(Sketcher.Constraint("Vertical", 4))
sketch6.addConstraint(Sketcher.Constraint("Horizontal", 5))
sketch6.addConstraint(Sketcher.Constraint("Vertical", 6))
sketch6.addConstraint(Sketcher.Constraint("Horizontal", 7))
sketch6.addConstraint(Sketcher.Constraint("Equal", 0, 1))
sketch6.addConstraint(Sketcher.Constraint("Equal", 1, 2))
sketch6.addConstraint(Sketcher.Constraint("Equal", 8, 9))
sketch6.addConstraint(Sketcher.Constraint("Horizontal", 0, 3, 1, 3))
sketch6.addConstraint(Sketcher.Constraint("Horizontal", 1, 3, 2, 3))
sketch6.addConstraint(Sketcher.Constraint("Horizontal", 2, 3, 3, 3))
sketch6.addConstraint(Sketcher.Constraint("Horizontal", 3, 3, 8, 3))
sketch6.addConstraint(Sketcher.Constraint("Horizontal", 8, 3, 9, 3))
sketch6.addConstraint(Sketcher.Constraint("Diameter", 0, 11.0))
sketch6.addConstraint(Sketcher.Constraint("Diameter", 3, 6.0))
sketch6.addConstraint(Sketcher.Constraint("Diameter", 8, 3.5))
sketch6.addConstraint(Sketcher.Constraint("DistanceX", 5, 2, 5, 1, 10.0))
sketch6.addConstraint(Sketcher.Constraint("DistanceY", 4, 2, 4, 1, 7.0))
sketch6.addConstraint(Sketcher.Constraint("DistanceX", 0, 3, 1, 3, 140.0))
sketch6.addConstraint(Sketcher.Constraint("DistanceX", 2, 3, 1, 3, 40.0))
sketch6.addConstraint(Sketcher.Constraint("DistanceX", 0, 3, 3, 3, 50.0))
sketch6.addConstraint(Sketcher.Constraint("DistanceX", 9, 3, 8, 3, 17.0))
sketch6.addConstraint(Sketcher.Constraint("DistanceX", 4, 2, 3, 3, 15.0))
sketch6.addConstraint(Sketcher.Constraint("DistanceX", 8, 3, 3, 3, 11.5))
sketch6.addConstraint(Sketcher.Constraint("DistanceY", 4, 2, 8, 3, 3.5))
sketch6.addConstraint(Sketcher.Constraint("DistanceY", -1, 1, 0, 3, 15.75))
sketch6.addConstraint(Sketcher.Constraint("DistanceX", 0, 3, -1, 1, 62.189981))
pocket4 = body.newObject("PartDesign::Pocket", "Pocket003")
pocket4.Profile = sketch6
pocket4.Length = 20
pocket4.Reversed = True

sketch7 = body.newObject("Sketcher::SketchObject", "Sketch006")
sketch7.AttachmentSupport = (doc.getObject("XZ_Plane"), [""])
sketch7.MapMode = "FlatFace"
sketch7.AttachmentOffset = App.Placement(Vector(0, 0, -32.5), App.Rotation())
sketch7.addGeometry(Part.LineSegment(Vector(98.81, -48.95, 0), Vector(98.81, 54.05, 0)), False)
sketch7.addGeometry(Part.ArcOfCircle(Part.Circle(Vector(93.81, 54.05, 0), Vector(0, 0, 1), 5), math.radians(0), math.radians(0.58)), False)
sketch7.addGeometry(Part.ArcOfCircle(Part.Circle(Vector(96.31, 56.55, 0), Vector(0, 0, 1), 3.5), math.radians(134), math.radians(316)), False)
sketch7.addGeometry(Part.ArcOfCircle(Part.Circle(Vector(93.81, 54.05, 0), Vector(0, 0, 1), 5), math.radians(89.42), math.radians(90)), False)
sketch7.addGeometry(Part.LineSegment(Vector(93.81, 59.05, 0), Vector(-78.19, 59.05, 0)), False)
sketch7.addGeometry(Part.ArcOfCircle(Part.Circle(Vector(-78.19, 54.05, 0), Vector(0, 0, 1), 5), math.radians(90), math.radians(90.58)), False)
sketch7.addGeometry(Part.ArcOfCircle(Part.Circle(Vector(-80.69, 56.55, 0), Vector(0, 0, 1), 3.5), math.radians(-136), math.radians(46)), False)
sketch7.addGeometry(Part.ArcOfCircle(Part.Circle(Vector(-78.19, 54.05, 0), Vector(0, 0, 1), 5), math.radians(179.42), math.radians(180)), False)
sketch7.addGeometry(Part.LineSegment(Vector(-83.19, 54.05, 0), Vector(-83.19, -48.95, 0)), False)
sketch7.addGeometry(Part.ArcOfCircle(Part.Circle(Vector(-78.19, -48.95, 0), Vector(0, 0, 1), 5), math.radians(-180), math.radians(-179.42)), False)
sketch7.addGeometry(Part.ArcOfCircle(Part.Circle(Vector(-80.69, -51.45, 0), Vector(0, 0, 1), 3.5), math.radians(-46), math.radians(136)), False)
sketch7.addGeometry(Part.ArcOfCircle(Part.Circle(Vector(-78.19, -48.95, 0), Vector(0, 0, 1), 5), math.radians(-90.58), math.radians(-90)), False)
sketch7.addGeometry(Part.LineSegment(Vector(-78.19, -53.95, 0), Vector(93.81, -53.95, 0)), False)
sketch7.addGeometry(Part.ArcOfCircle(Part.Circle(Vector(93.81, -48.95, 0), Vector(0, 0, 1), 5), math.radians(-90), math.radians(-89.42)), False)
sketch7.addGeometry(Part.ArcOfCircle(Part.Circle(Vector(96.31, -51.45, 0), Vector(0, 0, 1), 3.5), math.radians(44), math.radians(226)), False)
sketch7.addGeometry(Part.ArcOfCircle(Part.Circle(Vector(93.81, -48.95, 0), Vector(0, 0, 1), 5), math.radians(-0.58), math.radians(0)), False)
sketch7.addConstraint(Sketcher.Constraint("Tangent", 0, 2, 1, 1))
sketch7.addConstraint(Sketcher.Constraint("Coincident", 1, 2, 2, 2))
sketch7.addConstraint(Sketcher.Constraint("Coincident", 2, 1, 3, 1))
sketch7.addConstraint(Sketcher.Constraint("Tangent", 3, 2, 4, 1))
sketch7.addConstraint(Sketcher.Constraint("Tangent", 4, 2, 5, 1))
sketch7.addConstraint(Sketcher.Constraint("Coincident", 5, 2, 6, 2))
sketch7.addConstraint(Sketcher.Constraint("Coincident", 6, 1, 7, 1))
sketch7.addConstraint(Sketcher.Constraint("Tangent", 7, 2, 8, 1))
sketch7.addConstraint(Sketcher.Constraint("Tangent", 8, 2, 9, 1))
sketch7.addConstraint(Sketcher.Constraint("Coincident", 9, 2, 10, 2))
sketch7.addConstraint(Sketcher.Constraint("Coincident", 10, 1, 11, 1))
sketch7.addConstraint(Sketcher.Constraint("Tangent", 11, 2, 12, 1))
sketch7.addConstraint(Sketcher.Constraint("Tangent", 12, 2, 13, 1))
sketch7.addConstraint(Sketcher.Constraint("Coincident", 13, 2, 14, 2))
sketch7.addConstraint(Sketcher.Constraint("Coincident", 14, 1, 15, 1))
sketch7.addConstraint(Sketcher.Constraint("Tangent", 15, 2, 0, 1))
sketch7.addConstraint(Sketcher.Constraint("Vertical", 0))
sketch7.addConstraint(Sketcher.Constraint("Horizontal", 4))
sketch7.addConstraint(Sketcher.Constraint("Vertical", 8))
sketch7.addConstraint(Sketcher.Constraint("Horizontal", 12))
sketch7.addConstraint(Sketcher.Constraint("Equal", 1, 3))
sketch7.addConstraint(Sketcher.Constraint("Equal", 3, 5))
sketch7.addConstraint(Sketcher.Constraint("Equal", 2, 6))
sketch7.addConstraint(Sketcher.Constraint("Equal", 5, 7))
sketch7.addConstraint(Sketcher.Constraint("Equal", 7, 9))
sketch7.addConstraint(Sketcher.Constraint("Equal", 6, 10))
sketch7.addConstraint(Sketcher.Constraint("Equal", 9, 11))
sketch7.addConstraint(Sketcher.Constraint("Equal", 11, 13))
sketch7.addConstraint(Sketcher.Constraint("Equal", 10, 14))
sketch7.addConstraint(Sketcher.Constraint("Equal", 13, 15))
sketch7.addConstraint(Sketcher.Constraint("Horizontal", 2, 3, 6, 3))
sketch7.addConstraint(Sketcher.Constraint("Horizontal", 1, 3, 7, 3))
sketch7.addConstraint(Sketcher.Constraint("Horizontal", 10, 3, 14, 3))
sketch7.addConstraint(Sketcher.Constraint("Horizontal", 9, 3, 15, 3))
sketch7.addConstraint(Sketcher.Constraint("Horizontal", 2, 1, 5, 2))
sketch7.addConstraint(Sketcher.Constraint("Horizontal", 1, 2, 6, 1))
sketch7.addConstraint(Sketcher.Constraint("Horizontal", 10, 1, 13, 2))
sketch7.addConstraint(Sketcher.Constraint("Horizontal", 9, 2, 14, 1))
sketch7.addConstraint(Sketcher.Constraint("Vertical", 6, 3, 10, 3))
sketch7.addConstraint(Sketcher.Constraint("Vertical", 5, 3, 11, 3))
sketch7.addConstraint(Sketcher.Constraint("Vertical", 6, 1, 9, 2))
sketch7.addConstraint(Sketcher.Constraint("Vertical", 5, 2, 10, 1))
sketch7.addConstraint(Sketcher.Constraint("Radius", 2, 3.5))
sketch7.addConstraint(Sketcher.Constraint("DistanceX", 4, 2, 4, 1, 172.0))
sketch7.addConstraint(Sketcher.Constraint("DistanceY", 0, 1, 0, 2, 103.0))
sketch7.addConstraint(Sketcher.Constraint("DistanceX", 6, 3, 2, 3, 177.0))
sketch7.addConstraint(Sketcher.Constraint("DistanceY", 10, 3, 6, 3, 108.0))
sketch7.addConstraint(Sketcher.Constraint("DistanceX", 3, 3, 0, 2, 5.0))
sketch7.addConstraint(Sketcher.Constraint("DistanceY", 1, 3, 3, 2, 5.0))
sketch7.addConstraint(Sketcher.Constraint("Radius", 1, 5.000011))
sketch7.addConstraint(Sketcher.Constraint("DistanceY", -1, 1, 3, 3, 54.052699))
sketch7.addConstraint(Sketcher.Constraint("DistanceX", -1, 1, 2, 3, 96.310019))
pocket5 = body.newObject("PartDesign::Pocket", "Pocket004")
pocket5.Profile = sketch7
pocket5.Length = 1
pocket5.Reversed = True

doc.recompute()
